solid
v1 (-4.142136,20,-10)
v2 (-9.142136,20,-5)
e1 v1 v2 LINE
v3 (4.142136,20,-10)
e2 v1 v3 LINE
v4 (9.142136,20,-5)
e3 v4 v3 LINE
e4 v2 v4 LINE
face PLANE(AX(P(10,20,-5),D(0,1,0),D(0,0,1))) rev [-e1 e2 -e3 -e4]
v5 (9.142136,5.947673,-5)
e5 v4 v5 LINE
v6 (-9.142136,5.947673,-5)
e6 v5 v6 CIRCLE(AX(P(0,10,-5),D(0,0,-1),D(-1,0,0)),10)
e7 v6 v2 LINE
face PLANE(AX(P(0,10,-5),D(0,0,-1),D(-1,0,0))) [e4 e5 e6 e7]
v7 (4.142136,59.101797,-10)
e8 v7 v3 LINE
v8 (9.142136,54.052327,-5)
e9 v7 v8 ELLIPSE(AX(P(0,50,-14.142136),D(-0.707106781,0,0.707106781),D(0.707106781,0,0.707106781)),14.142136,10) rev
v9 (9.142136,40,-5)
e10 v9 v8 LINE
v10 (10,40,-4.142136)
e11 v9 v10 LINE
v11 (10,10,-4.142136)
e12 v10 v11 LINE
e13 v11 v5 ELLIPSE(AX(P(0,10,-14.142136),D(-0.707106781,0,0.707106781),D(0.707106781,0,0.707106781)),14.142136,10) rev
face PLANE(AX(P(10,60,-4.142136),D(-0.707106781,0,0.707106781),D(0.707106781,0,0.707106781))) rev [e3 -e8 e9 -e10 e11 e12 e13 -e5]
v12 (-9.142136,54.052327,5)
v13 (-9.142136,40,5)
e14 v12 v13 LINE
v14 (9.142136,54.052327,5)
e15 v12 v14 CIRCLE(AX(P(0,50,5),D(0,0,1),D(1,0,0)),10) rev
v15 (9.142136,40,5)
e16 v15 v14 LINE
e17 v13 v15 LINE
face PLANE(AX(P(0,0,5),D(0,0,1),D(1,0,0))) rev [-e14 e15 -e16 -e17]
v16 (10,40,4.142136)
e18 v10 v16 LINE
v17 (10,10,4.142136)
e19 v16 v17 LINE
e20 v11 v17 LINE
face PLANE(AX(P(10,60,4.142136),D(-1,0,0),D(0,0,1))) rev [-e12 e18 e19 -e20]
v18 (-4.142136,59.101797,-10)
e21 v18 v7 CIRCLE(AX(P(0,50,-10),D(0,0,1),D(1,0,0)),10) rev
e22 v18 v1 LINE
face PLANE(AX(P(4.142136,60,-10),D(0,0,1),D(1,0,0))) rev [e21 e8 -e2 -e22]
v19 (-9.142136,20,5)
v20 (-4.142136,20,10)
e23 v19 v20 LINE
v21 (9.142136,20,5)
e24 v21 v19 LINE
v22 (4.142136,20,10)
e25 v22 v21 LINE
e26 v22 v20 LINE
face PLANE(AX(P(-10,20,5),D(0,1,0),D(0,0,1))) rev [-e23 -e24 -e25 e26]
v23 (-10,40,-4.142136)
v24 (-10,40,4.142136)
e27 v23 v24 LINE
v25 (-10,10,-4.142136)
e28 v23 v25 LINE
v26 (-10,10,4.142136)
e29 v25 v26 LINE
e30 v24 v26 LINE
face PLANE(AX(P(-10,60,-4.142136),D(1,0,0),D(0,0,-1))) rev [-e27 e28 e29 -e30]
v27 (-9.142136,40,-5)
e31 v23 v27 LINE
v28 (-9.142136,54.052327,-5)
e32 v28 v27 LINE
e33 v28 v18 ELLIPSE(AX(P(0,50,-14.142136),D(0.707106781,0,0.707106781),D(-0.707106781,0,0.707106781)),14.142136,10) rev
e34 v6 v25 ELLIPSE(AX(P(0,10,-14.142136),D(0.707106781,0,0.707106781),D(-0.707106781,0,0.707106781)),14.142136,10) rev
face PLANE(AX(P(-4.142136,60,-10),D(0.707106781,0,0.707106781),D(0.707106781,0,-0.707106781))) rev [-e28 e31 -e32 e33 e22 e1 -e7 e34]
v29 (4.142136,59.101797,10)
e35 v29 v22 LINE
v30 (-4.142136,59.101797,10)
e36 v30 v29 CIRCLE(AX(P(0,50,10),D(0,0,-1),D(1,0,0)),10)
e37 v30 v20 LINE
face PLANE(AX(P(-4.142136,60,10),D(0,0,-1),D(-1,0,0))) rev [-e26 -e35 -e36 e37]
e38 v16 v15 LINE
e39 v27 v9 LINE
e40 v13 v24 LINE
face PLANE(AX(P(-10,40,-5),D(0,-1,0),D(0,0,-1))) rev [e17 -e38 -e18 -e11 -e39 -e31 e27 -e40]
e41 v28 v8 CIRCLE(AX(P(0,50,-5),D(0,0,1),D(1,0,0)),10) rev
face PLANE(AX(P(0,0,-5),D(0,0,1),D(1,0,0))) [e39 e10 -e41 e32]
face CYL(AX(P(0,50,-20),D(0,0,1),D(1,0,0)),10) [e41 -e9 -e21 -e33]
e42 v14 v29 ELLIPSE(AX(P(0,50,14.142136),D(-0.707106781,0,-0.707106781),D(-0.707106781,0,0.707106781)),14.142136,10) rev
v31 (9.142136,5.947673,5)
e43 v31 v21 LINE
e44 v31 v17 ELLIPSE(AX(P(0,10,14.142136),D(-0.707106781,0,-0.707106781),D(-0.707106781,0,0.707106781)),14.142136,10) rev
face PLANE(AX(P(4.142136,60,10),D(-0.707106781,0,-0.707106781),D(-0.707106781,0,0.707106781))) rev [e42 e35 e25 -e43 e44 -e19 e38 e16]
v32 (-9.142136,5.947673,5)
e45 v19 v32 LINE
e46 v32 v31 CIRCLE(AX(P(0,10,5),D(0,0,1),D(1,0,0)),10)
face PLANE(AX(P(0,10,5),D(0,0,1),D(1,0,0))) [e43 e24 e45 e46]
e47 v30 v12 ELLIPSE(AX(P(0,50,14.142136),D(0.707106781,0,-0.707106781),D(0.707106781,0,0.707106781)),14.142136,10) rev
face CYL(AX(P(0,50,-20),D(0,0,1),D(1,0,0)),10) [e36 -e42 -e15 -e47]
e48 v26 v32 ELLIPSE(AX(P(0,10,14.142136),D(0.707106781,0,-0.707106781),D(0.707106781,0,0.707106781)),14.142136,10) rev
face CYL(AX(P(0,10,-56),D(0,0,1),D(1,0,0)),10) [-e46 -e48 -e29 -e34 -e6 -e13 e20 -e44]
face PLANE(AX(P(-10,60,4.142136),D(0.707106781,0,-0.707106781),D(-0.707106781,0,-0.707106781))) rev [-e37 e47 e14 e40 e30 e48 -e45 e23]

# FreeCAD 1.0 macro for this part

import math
import FreeCAD as App
import Part
import Sketcher

V = App.Vector
Q = App.Units.Quantity

doc = App.newDocument("Part")
body = doc.addObject("PartDesign::Body", "Body")

sketch1 = doc.addObject("Sketcher::SketchObject", "Sketch")
body.addObject(sketch1)
sketch1.AttachmentSupport = (doc.XZ_Plane, [""])
sketch1.MapMode = "FlatFace"
sketch1.addGeometry([
    Part.LineSegment(V(10, -4, 0), V(4, -10, 0)),
    Part.LineSegment(V(4, -10, 0), V(-4, -10, 0)),
    Part.LineSegment(V(-4, -10, 0), V(-10, -4, 0)),
    Part.LineSegment(V(-10, -4, 0), V(-10, 4, 0)),
    Part.LineSegment(V(-10, 4, 0), V(-4, 10, 0)),
    Part.LineSegment(V(-4, 10, 0), V(4, 10, 0)),
    Part.LineSegment(V(4, 10, 0), V(10, 4, 0)),
    Part.LineSegment(V(10, 4, 0), V(10, -4, 0)),
], False)
sketch1.addConstraint([
    Sketcher.Constraint("Coincident", 0, 2, 1, 1),
    Sketcher.Constraint("Coincident", 1, 2, 2, 1),
    Sketcher.Constraint("Coincident", 2, 2, 3, 1),
    Sketcher.Constraint("Coincident", 3, 2, 4, 1),
    Sketcher.Constraint("Coincident", 4, 2, 5, 1),
    Sketcher.Constraint("Coincident", 5, 2, 6, 1),
    Sketcher.Constraint("Coincident", 6, 2, 7, 1),
    Sketcher.Constraint("Coincident", 7, 2, 0, 1),
    Sketcher.Constraint("Horizontal", 1),
    Sketcher.Constraint("Vertical", 3),
    Sketcher.Constraint("Horizontal", 5),
    Sketcher.Constraint("Vertical", 7),
    Sketcher.Constraint("Symmetric", 0, 2, 4, 2, -1, 1),
    Sketcher.Constraint("Symmetric", 2, 2, 6, 2, -1, 1),
    Sketcher.Constraint("Perpendicular", 0, 2),
    Sketcher.Constraint("Perpendicular", 2, 4),
    Sketcher.Constraint("Perpendicular", 4, 6),
    Sketcher.Constraint("Horizontal", 3, 2, 6, 2),
    Sketcher.Constraint("Vertical", 1, 2, 4, 2),
    Sketcher.Constraint("Equal", 5, 3),
    Sketcher.Constraint("DistanceY", 0, 2, -1, 1, Q("10 mm")),
    Sketcher.Constraint("DistanceX", 1, 2, 1, 1, Q("8.284271 mm")),
])
pad1 = doc.addObject("PartDesign::Pad", "Pad")
body.addObject(pad1)
pad1.Profile = sketch1
pad1.Length = 60
pad1.Reversed = True

sketch2 = doc.addObject("Sketcher::SketchObject", "Sketch001")
body.addObject(sketch2)
sketch2.AttachmentSupport = (doc.XY_Plane, [""])
sketch2.MapMode = "FlatFace"
sketch2.AttachmentOffset = App.Placement(V(0, 0, 10), App.Rotation())
sketch2.addGeometry([
    Part.LineSegment(V(-10, 10, 0), V(-10, -2, 0)),
    Part.LineSegment(V(-10, -2, 0), V(10, -2, 0)),
    Part.LineSegment(V(10, -2, 0), V(10, 10, 0)),
    Part.ArcOfCircle(Part.Circle(V(0, 10, 0), V(0, 0, 1), 10), math.radians(180), math.radians(360)),
], False)
sketch2.addConstraint([
    Sketcher.Constraint("Coincident", 0, 2, 1, 1),
    Sketcher.Constraint("Coincident", 1, 2, 2, 1),
    Sketcher.Constraint("Tangent", 2, 2, 3, 2),
    Sketcher.Constraint("Tangent", 3, 1, 0, 1),
    Sketcher.Constraint("Vertical", 0),
    Sketcher.Constraint("Horizontal", 1),
    Sketcher.Constraint("Vertical", 2),
    Sketcher.Constraint("PointOnObject", 3, 3, -2),
    Sketcher.Constraint("Radius", 3, Q("10 mm")),
    Sketcher.Constraint("DistanceY", -1, 1, 3, 3, Q("10 mm")),
    Sketcher.Constraint("DistanceY", 0, 2, 0, 1, Q("12.389296 mm")),
])
pocket1 = doc.addObject("PartDesign::Pocket", "Pocket")
body.addObject(pocket1)
pocket1.Profile = sketch2
pocket1.Length = 66

sketch3 = doc.addObject("Sketcher::SketchObject", "Sketch002")
body.addObject(sketch3)
sketch3.AttachmentSupport = (doc.XY_Plane, [""])
sketch3.MapMode = "FlatFace"
sketch3.AttachmentOffset = App.Placement(V(0, 0, 10), App.Rotation())
sketch3.addGeometry([
    Part.LineSegment(V(-10, 20, 0), V(-10, 10, 0)),
    Part.ArcOfCircle(Part.Circle(V(0, 10, 0), V(0, 0, 1), 10), math.radians(180), math.radians(360)),
    Part.LineSegment(V(10, 10, 0), V(10, 20, 0)),
    Part.LineSegment(V(10, 20, 0), V(-10, 20, 0)),
], False)
sketch3.addConstraint([
    Sketcher.Constraint("Tangent", 0, 2, 1, 1),
    Sketcher.Constraint("Tangent", 1, 2, 2, 1),
    Sketcher.Constraint("Coincident", 2, 2, 3, 1),
    Sketcher.Constraint("Coincident", 3, 2, 0, 1),
    Sketcher.Constraint("Vertical", 0),
    Sketcher.Constraint("Vertical", 2),
    Sketcher.Constraint("Horizontal", 3),
    Sketcher.Constraint("PointOnObject", 1, 3, -2),
    Sketcher.Constraint("Radius", 1, Q("10 mm")),
    Sketcher.Constraint("DistanceY", 0, 2, 0, 1, Q("10 mm")),
    Sketcher.Constraint("DistanceY", -1, 1, 1, 3, Q("10 mm")),
])
pocket2 = doc.addObject("PartDesign::Pocket", "Pocket001")
body.addObject(pocket2)
pocket2.Profile = sketch3
pocket2.Length = 5

sketch4 = doc.addObject("Sketcher::SketchObject", "Sketch003")
body.addObject(sketch4)
sketch4.AttachmentSupport = (doc.XY_Plane, [""])
sketch4.MapMode = "FlatFace"
sketch4.AttachmentOffset = App.Placement(V(0, 0, -5), App.Rotation())
sketch4.addGeometry([
    Part.LineSegment(V(10, 20, 0), V(10, 10, 0)),
    Part.ArcOfCircle(Part.Circle(V(0, 10, 0), V(0, 0, 1), 10), math.radians(180), math.radians(360)),
    Part.LineSegment(V(-10, 10, 0), V(-10, 20, 0)),
    Part.LineSegment(V(-10, 20, 0), V(10, 20, 0)),
], False)
sketch4.addConstraint([
    Sketcher.Constraint("Tangent", 0, 2, 1, 2),
    Sketcher.Constraint("Tangent", 1, 1, 2, 1),
    Sketcher.Constraint("Coincident", 2, 2, 3, 1),
    Sketcher.Constraint("Coincident", 3, 2, 0, 1),
    Sketcher.Constraint("Vertical", 0),
    Sketcher.Constraint("Vertical", 2),
    Sketcher.Constraint("Horizontal", 3),
    Sketcher.Constraint("PointOnObject", 1, 3, -2),
    Sketcher.Constraint("Radius", 1, Q("10 mm")),
    Sketcher.Constraint("DistanceY", 0, 2, 0, 1, Q("10 mm")),
    Sketcher.Constraint("DistanceY", -1, 1, 1, 3, Q("10 mm")),
])
pocket3 = doc.addObject("PartDesign::Pocket", "Pocket002")
body.addObject(pocket3)
pocket3.Profile = sketch4
pocket3.Length = 5

sketch5 = doc.addObject("Sketcher::SketchObject", "Sketch004")
body.addObject(sketch5)
sketch5.AttachmentSupport = (doc.XY_Plane, [""])
sketch5.MapMode = "FlatFace"
sketch5.addGeometry([
    Part.LineSegment(V(-10, 60, 0), V(-10, 40, 0)),
    Part.LineSegment(V(-10, 40, 0), V(10, 40, 0)),
    Part.LineSegment(V(10, 40, 0), V(10, 60, 0)),
    Part.LineSegment(V(10, 60, 0), V(-10, 60, 0)),
], False)
sketch5.addConstraint([
    Sketcher.Constraint("Coincident", 0, 2, 1, 1),
    Sketcher.Constraint("Coincident", 1, 2, 2, 1),
    Sketcher.Constraint("Coincident", 2, 2, 3, 1),
    Sketcher.Constraint("Coincident", 3, 2, 0, 1),
    Sketcher.Constraint("Vertical", 0),
    Sketcher.Constraint("Horizontal", 1),
    Sketcher.Constraint("Vertical", 2),
    Sketcher.Constraint("Horizontal", 3),
    Sketcher.Constraint("Equal", 3, 0),
    Sketcher.Constraint("DistanceX", 1, 1, 1, 2, Q("20 mm")),
    Sketcher.Constraint("DistanceX", 0, 2, -1, 1, Q("10 mm")),
    Sketcher.Constraint("DistanceY", -1, 1, 0, 2, Q("40 mm")),
])
pocket4 = doc.addObject("PartDesign::Pocket", "Pocket003")
body.addObject(pocket4)
pocket4.Profile = sketch5
pocket4.Length = 10
pocket4.Midplane = True

sketch6 = doc.addObject("Sketcher::SketchObject", "Sketch005")
body.addObject(sketch6)
sketch6.AttachmentSupport = (doc.XY_Plane, [""])
sketch6.MapMode = "FlatFace"
sketch6.AttachmentOffset = App.Placement(V(0, 0, 10), App.Rotation())
sketch6.addGeometry([
    Part.LineSegment(V(-10, 64, 0), V(-10, 50, 0)),
    Part.ArcOfCircle(Part.Circle(V(0, 50, 0), V(0, 0, 1), 10), math.radians(0), math.radians(180)),
    Part.LineSegment(V(10, 50, 0), V(10, 64, 0)),
    Part.LineSegment(V(10, 64, 0), V(-10, 64, 0)),
], False)
sketch6.addConstraint([
    Sketcher.Constraint("Tangent", 0, 2, 1, 2),
    Sketcher.Constraint("Tangent", 1, 1, 2, 1),
    Sketcher.Constraint("Coincident", 2, 2, 3, 1),
    Sketcher.Constraint("Coincident", 3, 2, 0, 1),
    Sketcher.Constraint("Vertical", 0),
    Sketcher.Constraint("Vertical", 2),
    Sketcher.Constraint("Horizontal", 3),
    Sketcher.Constraint("PointOnObject", 1, 3, -2),
    Sketcher.Constraint("Radius", 1, Q("10 mm")),
    Sketcher.Constraint("DistanceY", -1, 1, 1, 3, Q("50 mm")),
    Sketcher.Constraint("DistanceY", 0, 2, 0, 1, Q("13.661192 mm")),
])
pocket5 = doc.addObject("PartDesign::Pocket", "Pocket004")
body.addObject(pocket5)
pocket5.Profile = sketch6
pocket5.Length = 30

doc.recompute()
